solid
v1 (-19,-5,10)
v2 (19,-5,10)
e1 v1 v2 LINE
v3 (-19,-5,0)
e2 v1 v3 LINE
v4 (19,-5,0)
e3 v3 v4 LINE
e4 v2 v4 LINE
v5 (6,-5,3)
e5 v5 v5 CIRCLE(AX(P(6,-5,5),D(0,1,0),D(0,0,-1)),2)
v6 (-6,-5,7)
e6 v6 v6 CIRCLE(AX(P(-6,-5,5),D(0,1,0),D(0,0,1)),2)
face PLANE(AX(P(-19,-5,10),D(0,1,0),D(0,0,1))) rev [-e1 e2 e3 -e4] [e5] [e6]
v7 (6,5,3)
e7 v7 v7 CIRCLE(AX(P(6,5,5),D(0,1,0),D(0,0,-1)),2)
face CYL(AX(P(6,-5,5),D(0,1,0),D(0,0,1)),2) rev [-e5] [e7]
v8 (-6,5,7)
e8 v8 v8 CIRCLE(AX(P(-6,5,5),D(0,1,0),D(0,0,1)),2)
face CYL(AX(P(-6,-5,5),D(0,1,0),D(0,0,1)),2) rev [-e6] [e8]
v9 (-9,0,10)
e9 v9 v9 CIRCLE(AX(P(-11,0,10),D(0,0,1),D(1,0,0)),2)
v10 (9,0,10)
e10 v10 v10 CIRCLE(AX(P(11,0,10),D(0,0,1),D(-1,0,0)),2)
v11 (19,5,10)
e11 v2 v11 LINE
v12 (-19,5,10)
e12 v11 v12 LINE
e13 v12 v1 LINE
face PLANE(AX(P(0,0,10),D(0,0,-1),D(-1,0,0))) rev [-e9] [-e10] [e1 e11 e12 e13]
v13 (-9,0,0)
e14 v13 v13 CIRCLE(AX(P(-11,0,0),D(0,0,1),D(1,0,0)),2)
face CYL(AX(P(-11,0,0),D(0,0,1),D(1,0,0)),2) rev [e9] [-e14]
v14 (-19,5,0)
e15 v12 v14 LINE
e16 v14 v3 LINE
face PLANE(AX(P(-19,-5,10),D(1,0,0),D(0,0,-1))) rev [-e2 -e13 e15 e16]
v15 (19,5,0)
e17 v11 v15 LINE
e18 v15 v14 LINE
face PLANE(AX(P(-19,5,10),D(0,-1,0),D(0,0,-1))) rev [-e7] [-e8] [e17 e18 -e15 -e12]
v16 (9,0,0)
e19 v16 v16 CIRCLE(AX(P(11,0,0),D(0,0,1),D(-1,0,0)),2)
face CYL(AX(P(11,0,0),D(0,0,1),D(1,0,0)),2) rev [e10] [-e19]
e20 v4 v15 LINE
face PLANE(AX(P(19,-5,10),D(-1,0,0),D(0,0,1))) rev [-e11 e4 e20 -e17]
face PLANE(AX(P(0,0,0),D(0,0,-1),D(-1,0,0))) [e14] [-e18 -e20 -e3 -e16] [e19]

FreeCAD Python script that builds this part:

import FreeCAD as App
import Part
import Sketcher

V = App.Vector


def add_polygon(sketch, points):
    """Adds a closed chain of lines whose ends are joined by coincident constraints."""
    first, n = sketch.GeometryCount, len(points)
    for a, b in zip(points, points[1:] + points[:1]):
        sketch.addGeometry(Part.LineSegment(App.Vector(*a, 0), App.Vector(*b, 0)), False)
    for i in range(n):
        sketch.addConstraint(Sketcher.Constraint("Coincident", first + i, 2, first + (i + 1) % n, 1))

doc = App.newDocument("Part")
body = doc.addObject("PartDesign::Body", "Body")

# Sketch on XY plane
sketch1 = body.newObject("Sketcher::SketchObject", "Sketch")
sketch1.AttachmentSupport = (doc.getObject("XY_Plane"), [""])
sketch1.MapMode = "FlatFace"
add_polygon(sketch1, [(-19, 5), (-19, -5), (19, -5), (19, 5)])  # lines 0-3
sketch1.addConstraint([
    Sketcher.Constraint("Vertical", 0),
    Sketcher.Constraint("Horizontal", 1),
    Sketcher.Constraint("Vertical", 2),
    Sketcher.Constraint("Horizontal", 3),
    Sketcher.Constraint("Symmetric", 0, 2, 2, 2, -1, 1),
    Sketcher.Constraint("DistanceX", 1, 1, 1, 2, 38.0),
    Sketcher.Constraint("DistanceY", 0, 2, 0, 1, 10.0),
])
pad1 = body.newObject("PartDesign::Pad", "Pad")
pad1.Profile = sketch1
pad1.Length = 10

# Sketch on XY plane
sketch2 = body.newObject("Sketcher::SketchObject", "Sketch001")
sketch2.AttachmentSupport = (doc.getObject("XY_Plane"), [""])
sketch2.MapMode = "FlatFace"
sketch2.AttachmentOffset = App.Placement(V(0, 0, 10), App.Rotation())
sketch2.addGeometry([
    Part.Circle(V(-11, 0, 0), V(0, 0, 1), 2),
    Part.Circle(V(11, 0, 0), V(0, 0, 1), 2),
], False)
sketch2.addConstraint([
    Sketcher.Constraint("Equal", 0, 1),
    Sketcher.Constraint("Symmetric", 0, 3, 1, 3, -1, 1),
    Sketcher.Constraint("PointOnObject", 0, 3, -1),
    Sketcher.Constraint("Diameter", 0, 4.0),
    Sketcher.Constraint("DistanceX", 0, 3, -1, 1, 11.0),
])
pocket1 = body.newObject("PartDesign::Pocket", "Pocket")
pocket1.Profile = sketch2
pocket1.Length = 10

# Sketch on XZ plane
sketch3 = body.newObject("Sketcher::SketchObject", "Sketch002")
sketch3.AttachmentSupport = (doc.getObject("XZ_Plane"), [""])
sketch3.MapMode = "FlatFace"
sketch3.AttachmentOffset = App.Placement(V(0, 0, -5), App.Rotation())
sketch3.addGeometry([
    Part.Circle(V(-6, 5, 0), V(0, 0, 1), 2),
    Part.Circle(V(6, 5, 0), V(0, 0, 1), 2),
], False)
sketch3.addConstraint([
    Sketcher.Constraint("Equal", 0, 1),
    Sketcher.Constraint("Symmetric", 0, 3, 1, 3, -2),
    Sketcher.Constraint("Diameter", 0, 4.0),
    Sketcher.Constraint("DistanceX", 0, 3, -1, 1, 6.0),
    Sketcher.Constraint("DistanceY", -1, 1, 0, 3, 5.0),
])
pocket2 = body.newObject("PartDesign::Pocket", "Pocket001")
pocket2.Profile = sketch3
pocket2.Length = 10
pocket2.Reversed = True

doc.recompute()
